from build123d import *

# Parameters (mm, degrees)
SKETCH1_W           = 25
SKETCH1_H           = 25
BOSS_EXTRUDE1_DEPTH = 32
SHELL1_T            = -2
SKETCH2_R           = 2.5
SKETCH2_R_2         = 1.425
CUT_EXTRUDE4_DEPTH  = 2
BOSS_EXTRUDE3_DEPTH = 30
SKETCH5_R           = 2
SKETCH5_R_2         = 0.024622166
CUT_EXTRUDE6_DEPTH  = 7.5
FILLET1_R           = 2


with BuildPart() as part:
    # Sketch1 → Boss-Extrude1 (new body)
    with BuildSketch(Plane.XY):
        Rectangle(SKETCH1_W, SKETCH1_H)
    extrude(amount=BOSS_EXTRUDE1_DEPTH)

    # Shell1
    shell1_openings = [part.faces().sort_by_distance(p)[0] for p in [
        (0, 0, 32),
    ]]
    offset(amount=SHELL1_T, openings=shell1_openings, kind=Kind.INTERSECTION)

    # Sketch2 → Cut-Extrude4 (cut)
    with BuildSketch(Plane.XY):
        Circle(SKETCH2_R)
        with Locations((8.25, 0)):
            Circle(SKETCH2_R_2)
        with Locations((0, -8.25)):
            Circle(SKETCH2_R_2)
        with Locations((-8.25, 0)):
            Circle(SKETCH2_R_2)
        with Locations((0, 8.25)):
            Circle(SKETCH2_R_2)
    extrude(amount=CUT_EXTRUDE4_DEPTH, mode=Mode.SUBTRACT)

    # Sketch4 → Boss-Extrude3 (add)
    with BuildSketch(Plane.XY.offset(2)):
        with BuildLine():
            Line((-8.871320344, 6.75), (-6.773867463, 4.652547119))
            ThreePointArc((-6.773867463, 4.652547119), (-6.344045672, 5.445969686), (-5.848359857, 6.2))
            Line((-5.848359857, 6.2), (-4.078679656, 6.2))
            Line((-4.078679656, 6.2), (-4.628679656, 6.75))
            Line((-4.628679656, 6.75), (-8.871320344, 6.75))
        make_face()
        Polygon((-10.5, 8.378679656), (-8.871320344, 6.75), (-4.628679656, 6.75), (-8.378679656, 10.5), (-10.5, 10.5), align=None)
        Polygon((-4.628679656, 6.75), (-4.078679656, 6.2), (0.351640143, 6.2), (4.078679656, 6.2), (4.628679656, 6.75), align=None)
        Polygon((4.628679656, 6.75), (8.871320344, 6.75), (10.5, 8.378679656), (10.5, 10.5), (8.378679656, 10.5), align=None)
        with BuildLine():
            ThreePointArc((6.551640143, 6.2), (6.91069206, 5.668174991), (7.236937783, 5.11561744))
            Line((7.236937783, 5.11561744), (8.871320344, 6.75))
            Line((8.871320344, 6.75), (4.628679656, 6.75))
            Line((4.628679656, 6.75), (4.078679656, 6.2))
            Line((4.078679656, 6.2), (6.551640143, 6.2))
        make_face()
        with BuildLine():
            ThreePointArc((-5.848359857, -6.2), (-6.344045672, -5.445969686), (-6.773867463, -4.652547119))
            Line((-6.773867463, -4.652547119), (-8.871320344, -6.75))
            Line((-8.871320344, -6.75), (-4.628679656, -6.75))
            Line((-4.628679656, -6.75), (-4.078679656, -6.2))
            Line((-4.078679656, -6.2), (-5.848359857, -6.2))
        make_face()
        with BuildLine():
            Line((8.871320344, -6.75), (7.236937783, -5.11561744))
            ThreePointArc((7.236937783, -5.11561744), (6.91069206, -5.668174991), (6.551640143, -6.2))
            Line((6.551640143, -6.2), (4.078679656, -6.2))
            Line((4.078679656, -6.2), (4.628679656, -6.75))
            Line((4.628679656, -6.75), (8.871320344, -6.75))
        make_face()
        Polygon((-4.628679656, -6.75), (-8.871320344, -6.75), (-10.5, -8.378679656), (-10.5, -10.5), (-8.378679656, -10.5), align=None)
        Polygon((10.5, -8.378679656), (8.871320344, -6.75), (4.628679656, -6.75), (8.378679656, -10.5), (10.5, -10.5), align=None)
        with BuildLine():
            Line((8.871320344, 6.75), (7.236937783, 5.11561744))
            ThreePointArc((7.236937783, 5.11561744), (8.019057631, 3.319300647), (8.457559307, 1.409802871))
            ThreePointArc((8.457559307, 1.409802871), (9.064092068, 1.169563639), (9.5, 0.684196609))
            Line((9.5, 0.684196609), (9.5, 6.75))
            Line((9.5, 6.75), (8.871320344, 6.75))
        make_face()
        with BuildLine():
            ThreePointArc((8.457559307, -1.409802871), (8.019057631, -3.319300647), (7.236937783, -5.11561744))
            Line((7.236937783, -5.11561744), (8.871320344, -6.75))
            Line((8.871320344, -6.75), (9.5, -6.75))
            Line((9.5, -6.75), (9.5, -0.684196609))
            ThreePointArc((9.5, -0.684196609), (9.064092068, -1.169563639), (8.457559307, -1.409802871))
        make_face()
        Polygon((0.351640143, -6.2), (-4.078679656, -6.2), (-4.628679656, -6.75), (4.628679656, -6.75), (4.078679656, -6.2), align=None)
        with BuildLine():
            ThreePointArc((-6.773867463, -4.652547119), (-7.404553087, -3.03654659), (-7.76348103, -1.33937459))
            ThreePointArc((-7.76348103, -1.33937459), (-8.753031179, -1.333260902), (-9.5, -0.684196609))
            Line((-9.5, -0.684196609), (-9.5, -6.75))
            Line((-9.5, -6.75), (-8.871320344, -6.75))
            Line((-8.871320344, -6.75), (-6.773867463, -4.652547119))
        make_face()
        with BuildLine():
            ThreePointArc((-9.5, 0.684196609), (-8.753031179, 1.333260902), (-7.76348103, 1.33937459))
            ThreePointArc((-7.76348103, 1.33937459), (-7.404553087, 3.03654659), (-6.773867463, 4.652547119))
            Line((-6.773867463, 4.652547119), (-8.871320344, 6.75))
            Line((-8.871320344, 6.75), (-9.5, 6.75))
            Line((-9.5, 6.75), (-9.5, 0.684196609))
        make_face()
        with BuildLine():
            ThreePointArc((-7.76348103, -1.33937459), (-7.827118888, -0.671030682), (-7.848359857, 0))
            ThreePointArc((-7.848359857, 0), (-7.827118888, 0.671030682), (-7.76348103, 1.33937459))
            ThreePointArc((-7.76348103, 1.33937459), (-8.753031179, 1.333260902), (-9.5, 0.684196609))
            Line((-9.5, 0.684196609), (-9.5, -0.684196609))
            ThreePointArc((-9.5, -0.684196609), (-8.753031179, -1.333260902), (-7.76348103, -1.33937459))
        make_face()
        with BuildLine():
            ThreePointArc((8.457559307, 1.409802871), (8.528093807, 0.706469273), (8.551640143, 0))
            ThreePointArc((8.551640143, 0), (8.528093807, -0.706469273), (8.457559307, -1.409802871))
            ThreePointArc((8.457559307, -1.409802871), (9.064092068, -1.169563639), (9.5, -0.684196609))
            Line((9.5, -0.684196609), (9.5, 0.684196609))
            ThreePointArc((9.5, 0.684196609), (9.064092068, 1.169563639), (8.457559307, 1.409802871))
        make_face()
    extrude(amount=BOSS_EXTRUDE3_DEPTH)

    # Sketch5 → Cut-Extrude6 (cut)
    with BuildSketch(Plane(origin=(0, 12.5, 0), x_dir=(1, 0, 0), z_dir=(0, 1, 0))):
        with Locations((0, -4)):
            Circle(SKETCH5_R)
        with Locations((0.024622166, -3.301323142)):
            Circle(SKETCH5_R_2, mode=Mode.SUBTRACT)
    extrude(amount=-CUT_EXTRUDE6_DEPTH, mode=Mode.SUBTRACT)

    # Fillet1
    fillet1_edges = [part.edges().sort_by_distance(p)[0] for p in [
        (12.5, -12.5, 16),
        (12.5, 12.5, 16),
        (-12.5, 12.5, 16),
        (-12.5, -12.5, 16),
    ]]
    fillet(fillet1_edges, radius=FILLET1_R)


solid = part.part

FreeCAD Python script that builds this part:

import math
import FreeCAD as App
import Part
import Sketcher

V = App.Vector


def edges_at(feature, points):
    """Names of the edges that pass closest to the given points."""
    edges = feature.Shape.Edges
    near = lambda p: min(range(len(edges)), key=lambda i: edges[i].distToShape(Part.Vertex(*p))[0])
    return sorted({f"Edge{near(p) + 1}" for p in points})


def faces_at(feature, points):
    """Names of the faces that lie closest to the given points."""
    faces = feature.Shape.Faces
    near = lambda p: min(range(len(faces)), key=lambda i: faces[i].distToShape(Part.Vertex(*p))[0])
    return sorted({f"Face{near(p) + 1}" for p in points})


def add_polygon(sketch, points):
    """Adds a closed chain of lines whose ends are joined by coincident constraints."""
    first, n = sketch.GeometryCount, len(points)
    for a, b in zip(points, points[1:] + points[:1]):
        sketch.addGeometry(Part.LineSegment(App.Vector(*a, 0), App.Vector(*b, 0)), False)
    for i in range(n):
        sketch.addConstraint(Sketcher.Constraint("Coincident", first + i, 2, first + (i + 1) % n, 1))

doc = App.newDocument("Part")
body = doc.addObject("PartDesign::Body", "Body")
body.AllowCompound = True

sketch1 = body.newObject("Sketcher::SketchObject", "Sketch")
sketch1.AttachmentSupport = (doc.getObject("XY_Plane"), [""])
sketch1.MapMode = "FlatFace"
add_polygon(sketch1, [(-12, 12), (-12, -12), (12, -12), (12, 12)])
sketch1.addConstraint(Sketcher.Constraint("Vertical", 0))
sketch1.addConstraint(Sketcher.Constraint("Horizontal", 1))
sketch1.addConstraint(Sketcher.Constraint("Vertical", 2))
sketch1.addConstraint(Sketcher.Constraint("Horizontal", 3))
sketch1.addConstraint(Sketcher.Constraint("Symmetric", 0, 2, 2, 2, -1, 1))
sketch1.addConstraint(Sketcher.Constraint("Equal", 3, 0))
sketch1.addConstraint(Sketcher.Constraint("DistanceX", 1, 1, 1, 2, 25.0))
pad1 = body.newObject("PartDesign::Pad", "Pad")
pad1.Profile = sketch1
pad1.Length = 32
doc.recompute()

thickness = body.newObject("PartDesign::Thickness", "Thickness")
thickness.Base = (pad1, faces_at(pad1, [(0, 0, 32)]))
thickness.Value = 2
thickness.Reversed = True
thickness.Join = "Intersection"

sketch2 = body.newObject("Sketcher::SketchObject", "Sketch001")
sketch2.AttachmentSupport = (doc.getObject("XY_Plane"), [""])
sketch2.MapMode = "FlatFace"
sketch2.addGeometry(Part.Circle(V(0, 0, 0), V(0, 0, 1), 2.5), False)
sketch2.addGeometry(Part.Circle(V(8.2, 0, 0), V(0, 0, 1), 1.4), False)
sketch2.addGeometry(Part.Circle(V(0, -8.2, 0), V(0, 0, 1), 1.4), False)
sketch2.addGeometry(Part.Circle(V(-8.2, 0, 0), V(0, 0, 1), 1.4), False)
sketch2.addGeometry(Part.Circle(V(0, 8.2, 0), V(0, 0, 1), 1.4), False)
sketch2.addConstraint(Sketcher.Constraint("Coincident", 0, 3, -1, 1))
sketch2.addConstraint(Sketcher.Constraint("Equal", 1, 2))
sketch2.addConstraint(Sketcher.Constraint("Equal", 2, 3))
sketch2.addConstraint(Sketcher.Constraint("Equal", 3, 4))
sketch2.addConstraint(Sketcher.Constraint("Symmetric", 1, 3, 3, 3, -1, 1))
sketch2.addConstraint(Sketcher.Constraint("Symmetric", 2, 3, 4, 3, -1, 1))
sketch2.addConstraint(Sketcher.Constraint("PointOnObject", 1, 3, -1))
sketch2.addConstraint(Sketcher.Constraint("PointOnObject", 2, 3, -2))
sketch2.addConstraint(Sketcher.Constraint("Diameter", 0, 5.0))
sketch2.addConstraint(Sketcher.Constraint("Diameter", 1, 2.85))
sketch2.addConstraint(Sketcher.Constraint("DistanceX", 3, 3, 1, 3, 16.5))
sketch2.addConstraint(Sketcher.Constraint("DistanceY", 2, 3, 4, 3, 16.5))
pocket1 = body.newObject("PartDesign::Pocket", "Pocket")
pocket1.Profile = sketch2
pocket1.Length = 2
pocket1.Reversed = True

sketch3 = body.newObject("Sketcher::SketchObject", "Sketch002")
sketch3.AttachmentSupport = (doc.getObject("XY_Plane"), [""])
sketch3.MapMode = "FlatFace"
sketch3.AttachmentOffset = App.Placement(V(0, 0, 2), App.Rotation())
add_polygon(sketch3, [(9.5, 6.8), (8.9, 6.8), (10.5, 8.4), (10.5, 10.5), (8.4, 10.5), (4.6, 6.8), (-4.6, 6.8), (-8.4, 10.5), (-10.5, 10.5), (-10.5, 8.4), (-8.9, 6.8), (-9.5, 6.8), (-9.5, -6.8), (-8.9, -6.8), (-10.5, -8.4), (-10.5, -10.5), (-8.4, -10.5), (-4.6, -6.8), (4.6, -6.8), (8.4, -10.5), (10.5, -10.5), (10.5, -8.4), (8.9, -6.8), (9.5, -6.8)])
sketch3.addGeometry(Part.ArcOfCircle(Part.Circle(V(2.8, 0, 0), V(0, 0, 1), 10.6), math.radians(144.24), math.radians(153.99)), False)
sketch3.addGeometry(Part.LineSegment(V(-5.8, 6.2, 0), V(6.6, 6.2, 0)), False)
sketch3.addGeometry(Part.ArcOfCircle(Part.Circle(V(-2.1, 0, 0), V(0, 0, 1), 10.6), math.radians(28.83), math.radians(35.76)), False)
sketch3.addGeometry(Part.ArcOfCircle(Part.Circle(V(-2.1, 0, 0), V(0, 0, 1), 10.6), math.radians(8), math.radians(29)), False)
sketch3.addGeometry(Part.ArcOfCircle(Part.Circle(V(-2.1, 0, 0), V(0, 0, 1), 10.6), math.radians(0), math.radians(7.64)), False)
sketch3.addGeometry(Part.ArcOfCircle(Part.Circle(V(-2.1, 0, 0), V(0, 0, 1), 10.6), math.radians(-7.64), math.radians(0)), False)
sketch3.addGeometry(Part.ArcOfCircle(Part.Circle(V(-2.1, 0, 0), V(0, 0, 1), 10.6), math.radians(-29), math.radians(-8)), False)
sketch3.addGeometry(Part.ArcOfCircle(Part.Circle(V(-2.1, 0, 0), V(0, 0, 1), 10.6), math.radians(-35.76), math.radians(-28.83)), False)
sketch3.addGeometry(Part.LineSegment(V(6.6, -6.2, 0), V(-5.8, -6.2, 0)), False)
sketch3.addGeometry(Part.ArcOfCircle(Part.Circle(V(2.8, 0, 0), V(0, 0, 1), 10.6), math.radians(-153.99), math.radians(-144.24)), False)
sketch3.addGeometry(Part.ArcOfCircle(Part.Circle(V(2.8, 0, 0), V(0, 0, 1), 10.6), math.radians(-172.75), math.radians(-153.99)), False)
sketch3.addGeometry(Part.ArcOfCircle(Part.Circle(V(2.8, 0, 0), V(0, 0, 1), 10.6), math.radians(-180), math.radians(-172.75)), False)
sketch3.addGeometry(Part.ArcOfCircle(Part.Circle(V(2.8, 0, 0), V(0, 0, 1), 10.6), math.radians(172.75), math.radians(180)), False)
sketch3.addGeometry(Part.ArcOfCircle(Part.Circle(V(2.8, 0, 0), V(0, 0, 1), 10.6), math.radians(153.99), math.radians(172.75)), False)
sketch3.addConstraint(Sketcher.Constraint("Coincident", 24, 1, 25, 1))
sketch3.addConstraint(Sketcher.Constraint("Coincident", 25, 2, 26, 2))
sketch3.addConstraint(Sketcher.Constraint("Tangent", 26, 1, 27, 2))
sketch3.addConstraint(Sketcher.Constraint("Tangent", 27, 1, 28, 2))
sketch3.addConstraint(Sketcher.Constraint("Tangent", 28, 1, 29, 2))
sketch3.addConstraint(Sketcher.Constraint("Tangent", 29, 1, 30, 2))
sketch3.addConstraint(Sketcher.Constraint("Tangent", 30, 1, 31, 2))
sketch3.addConstraint(Sketcher.Constraint("Coincident", 31, 1, 32, 1))
sketch3.addConstraint(Sketcher.Constraint("Coincident", 32, 2, 33, 2))
sketch3.addConstraint(Sketcher.Constraint("Tangent", 33, 1, 34, 2))
sketch3.addConstraint(Sketcher.Constraint("Tangent", 34, 1, 35, 2))
sketch3.addConstraint(Sketcher.Constraint("Tangent", 35, 1, 36, 2))
sketch3.addConstraint(Sketcher.Constraint("Tangent", 36, 1, 37, 2))
sketch3.addConstraint(Sketcher.Constraint("Tangent", 37, 1, 24, 2))
sketch3.addConstraint(Sketcher.Constraint("Horizontal", 0))
sketch3.addConstraint(Sketcher.Constraint("Vertical", 2))
sketch3.addConstraint(Sketcher.Constraint("Horizontal", 3))
sketch3.addConstraint(Sketcher.Constraint("Horizontal", 5))
sketch3.addConstraint(Sketcher.Constraint("Horizontal", 7))
sketch3.addConstraint(Sketcher.Constraint("Vertical", 8))
sketch3.addConstraint(Sketcher.Constraint("Horizontal", 10))
sketch3.addConstraint(Sketcher.Constraint("Vertical", 11))
sketch3.addConstraint(Sketcher.Constraint("Horizontal", 12))
sketch3.addConstraint(Sketcher.Constraint("Vertical", 14))
sketch3.addConstraint(Sketcher.Constraint("Horizontal", 15))
sketch3.addConstraint(Sketcher.Constraint("Horizontal", 17))
sketch3.addConstraint(Sketcher.Constraint("Horizontal", 19))
sketch3.addConstraint(Sketcher.Constraint("Vertical", 20))
sketch3.addConstraint(Sketcher.Constraint("Horizontal", 22))
sketch3.addConstraint(Sketcher.Constraint("Vertical", 23))
sketch3.addConstraint(Sketcher.Constraint("Horizontal", 25))
sketch3.addConstraint(Sketcher.Constraint("Horizontal", 32))
sketch3.addConstraint(Sketcher.Constraint("Coincident", 28, 3, 26, 3))
sketch3.addConstraint(Sketcher.Constraint("Coincident", 30, 3, 26, 3))
sketch3.addConstraint(Sketcher.Constraint("Coincident", 33, 3, 24, 3))
sketch3.addConstraint(Sketcher.Constraint("Coincident", 35, 3, 24, 3))
sketch3.addConstraint(Sketcher.Constraint("Equal", 24, 26))
sketch3.addConstraint(Sketcher.Constraint("Equal", 30, 31))
sketch3.addConstraint(Sketcher.Constraint("Equal", 31, 33))
sketch3.addConstraint(Sketcher.Constraint("Symmetric", 0, 2, 12, 2, -1, 1))
sketch3.addConstraint(Sketcher.Constraint("Symmetric", 1, 2, 13, 2, -1, 1))
sketch3.addConstraint(Sketcher.Constraint("Symmetric", 3, 2, 15, 2, -1, 1))
sketch3.addConstraint(Sketcher.Constraint("Symmetric", 4, 2, 16, 2, -1, 1))
sketch3.addConstraint(Sketcher.Constraint("Symmetric", 6, 2, 18, 2, -1, 1))
sketch3.addConstraint(Sketcher.Constraint("Symmetric", 8, 2, 20, 2, -1, 1))
sketch3.addConstraint(Sketcher.Constraint("Symmetric", 9, 2, 21, 2, -1, 1))
sketch3.addConstraint(Sketcher.Constraint("Symmetric", 3, 2, 6, 2, -2))
sketch3.addConstraint(Sketcher.Constraint("Symmetric", 1, 2, 8, 2, -2))
sketch3.addConstraint(Sketcher.Constraint("Symmetric", 0, 2, 9, 2, -2))
sketch3.addConstraint(Sketcher.Constraint("Symmetric", 27, 1, 29, 1, -1))
sketch3.addConstraint(Sketcher.Constraint("Symmetric", 24, 1, 32, 2, -1))
sketch3.addConstraint(Sketcher.Constraint("PointOnObject", 28, 1, -1))
sketch3.addConstraint(Sketcher.Constraint("PointOnObject", 35, 1, -1))
sketch3.addConstraint(Sketcher.Constraint("Parallel", 1, 4))
sketch3.addConstraint(Sketcher.Constraint("Perpendicular", 4, 6))
sketch3.addConstraint(Sketcher.Constraint("Parallel", 6, 9))
sketch3.addConstraint(Sketcher.Constraint("Perpendicular", 16, 18))
sketch3.addConstraint(Sketcher.Constraint("Horizontal", 0, 2, 4, 2))
sketch3.addConstraint(Sketcher.Constraint("Vertical", 26, 1, 30, 1))
sketch3.addConstraint(Sketcher.Constraint("Vertical", 34, 1, 36, 1))
sketch3.addConstraint(Sketcher.Constraint("Vertical", 33, 1, 37, 1))
sketch3.addConstraint(Sketcher.Constraint("Equal", 0, 10))
sketch3.addConstraint(Sketcher.Constraint("Equal", 19, 2))
sketch3.addConstraint(Sketcher.Constraint("Radius", 24, 10.61))
sketch3.addConstraint(Sketcher.Constraint("DistanceX", 25, 1, 25, 2, 12.4))
sketch3.addConstraint(Sketcher.Constraint("DistanceY", 11, 2, 11, 1, 13.5))
sketch3.addConstraint(Sketcher.Constraint("DistanceX", 8, 2, 10, 2, 1.0))
sketch3.addConstraint(Sketcher.Constraint("DistanceX", -1, 1, 1, 2, 10.5))
sketch3.addConstraint(Sketcher.Constraint("DistanceY", -1, 1, 2, 2, 10.5))
sketch3.addConstraint(Sketcher.Constraint("DistanceY", -1, 1, 24, 1, 6.2))
sketch3.addConstraint(Sketcher.Constraint("Distance", 1, 2.303301))
sketch3.addConstraint(Sketcher.Constraint("DistanceX", -1, 1, 24, 3, 2.76164))
sketch3.addConstraint(Sketcher.Constraint("DistanceX", -1, 1, 27, 1, 8.457559))
sketch3.addConstraint(Sketcher.Constraint("DistanceX", 34, 1, -1, 1, 7.763481))
sketch3.addConstraint(Sketcher.Constraint("DistanceX", 4, 2, 26, 1, 2.608258))
sketch3.addConstraint(Sketcher.Constraint("DistanceX", 33, 1, -1, 1, 6.773867))
pad2 = body.newObject("PartDesign::Pad", "Pad001")
pad2.Profile = sketch3
pad2.Length = 30

sketch4 = body.newObject("Sketcher::SketchObject", "Sketch003")
sketch4.AttachmentSupport = (doc.getObject("XZ_Plane"), [""])
sketch4.MapMode = "FlatFace"
sketch4.AttachmentOffset = App.Placement(V(0, 0, -12.5), App.Rotation())
sketch4.addGeometry(Part.Circle(V(0, 4, 0), V(0, 0, 1), 2), False)
sketch4.addGeometry(Part.Circle(V(0.025, 3.301, 0), V(0, 0, 1), 0.025), False)
sketch4.addConstraint(Sketcher.Constraint("PointOnObject", 0, 3, -2))
sketch4.addConstraint(Sketcher.Constraint("Diameter", 0, 4.0))
sketch4.addConstraint(Sketcher.Constraint("DistanceY", -1, 1, 0, 3, 4.0))
sketch4.addConstraint(Sketcher.Constraint("Diameter", 1, 0.049244))
sketch4.addConstraint(Sketcher.Constraint("DistanceX", -1, 1, 1, 3, 0.024622))
sketch4.addConstraint(Sketcher.Constraint("DistanceY", -1, 1, 1, 3, 3.301323))
pocket2 = body.newObject("PartDesign::Pocket", "Pocket001")
pocket2.Profile = sketch4
pocket2.Length = 7.5
pocket2.Reversed = True
doc.recompute()

fillet = body.newObject("PartDesign::Fillet", "Fillet")
fillet.Base = (pocket2, edges_at(pocket2, [
    (12.5, -12.5, 16),
    (12.5, 12.5, 16),
    (-12.5, 12.5, 16),
    (-12.5, -12.5, 16),
]))
fillet.Radius = 2

doc.recompute()
